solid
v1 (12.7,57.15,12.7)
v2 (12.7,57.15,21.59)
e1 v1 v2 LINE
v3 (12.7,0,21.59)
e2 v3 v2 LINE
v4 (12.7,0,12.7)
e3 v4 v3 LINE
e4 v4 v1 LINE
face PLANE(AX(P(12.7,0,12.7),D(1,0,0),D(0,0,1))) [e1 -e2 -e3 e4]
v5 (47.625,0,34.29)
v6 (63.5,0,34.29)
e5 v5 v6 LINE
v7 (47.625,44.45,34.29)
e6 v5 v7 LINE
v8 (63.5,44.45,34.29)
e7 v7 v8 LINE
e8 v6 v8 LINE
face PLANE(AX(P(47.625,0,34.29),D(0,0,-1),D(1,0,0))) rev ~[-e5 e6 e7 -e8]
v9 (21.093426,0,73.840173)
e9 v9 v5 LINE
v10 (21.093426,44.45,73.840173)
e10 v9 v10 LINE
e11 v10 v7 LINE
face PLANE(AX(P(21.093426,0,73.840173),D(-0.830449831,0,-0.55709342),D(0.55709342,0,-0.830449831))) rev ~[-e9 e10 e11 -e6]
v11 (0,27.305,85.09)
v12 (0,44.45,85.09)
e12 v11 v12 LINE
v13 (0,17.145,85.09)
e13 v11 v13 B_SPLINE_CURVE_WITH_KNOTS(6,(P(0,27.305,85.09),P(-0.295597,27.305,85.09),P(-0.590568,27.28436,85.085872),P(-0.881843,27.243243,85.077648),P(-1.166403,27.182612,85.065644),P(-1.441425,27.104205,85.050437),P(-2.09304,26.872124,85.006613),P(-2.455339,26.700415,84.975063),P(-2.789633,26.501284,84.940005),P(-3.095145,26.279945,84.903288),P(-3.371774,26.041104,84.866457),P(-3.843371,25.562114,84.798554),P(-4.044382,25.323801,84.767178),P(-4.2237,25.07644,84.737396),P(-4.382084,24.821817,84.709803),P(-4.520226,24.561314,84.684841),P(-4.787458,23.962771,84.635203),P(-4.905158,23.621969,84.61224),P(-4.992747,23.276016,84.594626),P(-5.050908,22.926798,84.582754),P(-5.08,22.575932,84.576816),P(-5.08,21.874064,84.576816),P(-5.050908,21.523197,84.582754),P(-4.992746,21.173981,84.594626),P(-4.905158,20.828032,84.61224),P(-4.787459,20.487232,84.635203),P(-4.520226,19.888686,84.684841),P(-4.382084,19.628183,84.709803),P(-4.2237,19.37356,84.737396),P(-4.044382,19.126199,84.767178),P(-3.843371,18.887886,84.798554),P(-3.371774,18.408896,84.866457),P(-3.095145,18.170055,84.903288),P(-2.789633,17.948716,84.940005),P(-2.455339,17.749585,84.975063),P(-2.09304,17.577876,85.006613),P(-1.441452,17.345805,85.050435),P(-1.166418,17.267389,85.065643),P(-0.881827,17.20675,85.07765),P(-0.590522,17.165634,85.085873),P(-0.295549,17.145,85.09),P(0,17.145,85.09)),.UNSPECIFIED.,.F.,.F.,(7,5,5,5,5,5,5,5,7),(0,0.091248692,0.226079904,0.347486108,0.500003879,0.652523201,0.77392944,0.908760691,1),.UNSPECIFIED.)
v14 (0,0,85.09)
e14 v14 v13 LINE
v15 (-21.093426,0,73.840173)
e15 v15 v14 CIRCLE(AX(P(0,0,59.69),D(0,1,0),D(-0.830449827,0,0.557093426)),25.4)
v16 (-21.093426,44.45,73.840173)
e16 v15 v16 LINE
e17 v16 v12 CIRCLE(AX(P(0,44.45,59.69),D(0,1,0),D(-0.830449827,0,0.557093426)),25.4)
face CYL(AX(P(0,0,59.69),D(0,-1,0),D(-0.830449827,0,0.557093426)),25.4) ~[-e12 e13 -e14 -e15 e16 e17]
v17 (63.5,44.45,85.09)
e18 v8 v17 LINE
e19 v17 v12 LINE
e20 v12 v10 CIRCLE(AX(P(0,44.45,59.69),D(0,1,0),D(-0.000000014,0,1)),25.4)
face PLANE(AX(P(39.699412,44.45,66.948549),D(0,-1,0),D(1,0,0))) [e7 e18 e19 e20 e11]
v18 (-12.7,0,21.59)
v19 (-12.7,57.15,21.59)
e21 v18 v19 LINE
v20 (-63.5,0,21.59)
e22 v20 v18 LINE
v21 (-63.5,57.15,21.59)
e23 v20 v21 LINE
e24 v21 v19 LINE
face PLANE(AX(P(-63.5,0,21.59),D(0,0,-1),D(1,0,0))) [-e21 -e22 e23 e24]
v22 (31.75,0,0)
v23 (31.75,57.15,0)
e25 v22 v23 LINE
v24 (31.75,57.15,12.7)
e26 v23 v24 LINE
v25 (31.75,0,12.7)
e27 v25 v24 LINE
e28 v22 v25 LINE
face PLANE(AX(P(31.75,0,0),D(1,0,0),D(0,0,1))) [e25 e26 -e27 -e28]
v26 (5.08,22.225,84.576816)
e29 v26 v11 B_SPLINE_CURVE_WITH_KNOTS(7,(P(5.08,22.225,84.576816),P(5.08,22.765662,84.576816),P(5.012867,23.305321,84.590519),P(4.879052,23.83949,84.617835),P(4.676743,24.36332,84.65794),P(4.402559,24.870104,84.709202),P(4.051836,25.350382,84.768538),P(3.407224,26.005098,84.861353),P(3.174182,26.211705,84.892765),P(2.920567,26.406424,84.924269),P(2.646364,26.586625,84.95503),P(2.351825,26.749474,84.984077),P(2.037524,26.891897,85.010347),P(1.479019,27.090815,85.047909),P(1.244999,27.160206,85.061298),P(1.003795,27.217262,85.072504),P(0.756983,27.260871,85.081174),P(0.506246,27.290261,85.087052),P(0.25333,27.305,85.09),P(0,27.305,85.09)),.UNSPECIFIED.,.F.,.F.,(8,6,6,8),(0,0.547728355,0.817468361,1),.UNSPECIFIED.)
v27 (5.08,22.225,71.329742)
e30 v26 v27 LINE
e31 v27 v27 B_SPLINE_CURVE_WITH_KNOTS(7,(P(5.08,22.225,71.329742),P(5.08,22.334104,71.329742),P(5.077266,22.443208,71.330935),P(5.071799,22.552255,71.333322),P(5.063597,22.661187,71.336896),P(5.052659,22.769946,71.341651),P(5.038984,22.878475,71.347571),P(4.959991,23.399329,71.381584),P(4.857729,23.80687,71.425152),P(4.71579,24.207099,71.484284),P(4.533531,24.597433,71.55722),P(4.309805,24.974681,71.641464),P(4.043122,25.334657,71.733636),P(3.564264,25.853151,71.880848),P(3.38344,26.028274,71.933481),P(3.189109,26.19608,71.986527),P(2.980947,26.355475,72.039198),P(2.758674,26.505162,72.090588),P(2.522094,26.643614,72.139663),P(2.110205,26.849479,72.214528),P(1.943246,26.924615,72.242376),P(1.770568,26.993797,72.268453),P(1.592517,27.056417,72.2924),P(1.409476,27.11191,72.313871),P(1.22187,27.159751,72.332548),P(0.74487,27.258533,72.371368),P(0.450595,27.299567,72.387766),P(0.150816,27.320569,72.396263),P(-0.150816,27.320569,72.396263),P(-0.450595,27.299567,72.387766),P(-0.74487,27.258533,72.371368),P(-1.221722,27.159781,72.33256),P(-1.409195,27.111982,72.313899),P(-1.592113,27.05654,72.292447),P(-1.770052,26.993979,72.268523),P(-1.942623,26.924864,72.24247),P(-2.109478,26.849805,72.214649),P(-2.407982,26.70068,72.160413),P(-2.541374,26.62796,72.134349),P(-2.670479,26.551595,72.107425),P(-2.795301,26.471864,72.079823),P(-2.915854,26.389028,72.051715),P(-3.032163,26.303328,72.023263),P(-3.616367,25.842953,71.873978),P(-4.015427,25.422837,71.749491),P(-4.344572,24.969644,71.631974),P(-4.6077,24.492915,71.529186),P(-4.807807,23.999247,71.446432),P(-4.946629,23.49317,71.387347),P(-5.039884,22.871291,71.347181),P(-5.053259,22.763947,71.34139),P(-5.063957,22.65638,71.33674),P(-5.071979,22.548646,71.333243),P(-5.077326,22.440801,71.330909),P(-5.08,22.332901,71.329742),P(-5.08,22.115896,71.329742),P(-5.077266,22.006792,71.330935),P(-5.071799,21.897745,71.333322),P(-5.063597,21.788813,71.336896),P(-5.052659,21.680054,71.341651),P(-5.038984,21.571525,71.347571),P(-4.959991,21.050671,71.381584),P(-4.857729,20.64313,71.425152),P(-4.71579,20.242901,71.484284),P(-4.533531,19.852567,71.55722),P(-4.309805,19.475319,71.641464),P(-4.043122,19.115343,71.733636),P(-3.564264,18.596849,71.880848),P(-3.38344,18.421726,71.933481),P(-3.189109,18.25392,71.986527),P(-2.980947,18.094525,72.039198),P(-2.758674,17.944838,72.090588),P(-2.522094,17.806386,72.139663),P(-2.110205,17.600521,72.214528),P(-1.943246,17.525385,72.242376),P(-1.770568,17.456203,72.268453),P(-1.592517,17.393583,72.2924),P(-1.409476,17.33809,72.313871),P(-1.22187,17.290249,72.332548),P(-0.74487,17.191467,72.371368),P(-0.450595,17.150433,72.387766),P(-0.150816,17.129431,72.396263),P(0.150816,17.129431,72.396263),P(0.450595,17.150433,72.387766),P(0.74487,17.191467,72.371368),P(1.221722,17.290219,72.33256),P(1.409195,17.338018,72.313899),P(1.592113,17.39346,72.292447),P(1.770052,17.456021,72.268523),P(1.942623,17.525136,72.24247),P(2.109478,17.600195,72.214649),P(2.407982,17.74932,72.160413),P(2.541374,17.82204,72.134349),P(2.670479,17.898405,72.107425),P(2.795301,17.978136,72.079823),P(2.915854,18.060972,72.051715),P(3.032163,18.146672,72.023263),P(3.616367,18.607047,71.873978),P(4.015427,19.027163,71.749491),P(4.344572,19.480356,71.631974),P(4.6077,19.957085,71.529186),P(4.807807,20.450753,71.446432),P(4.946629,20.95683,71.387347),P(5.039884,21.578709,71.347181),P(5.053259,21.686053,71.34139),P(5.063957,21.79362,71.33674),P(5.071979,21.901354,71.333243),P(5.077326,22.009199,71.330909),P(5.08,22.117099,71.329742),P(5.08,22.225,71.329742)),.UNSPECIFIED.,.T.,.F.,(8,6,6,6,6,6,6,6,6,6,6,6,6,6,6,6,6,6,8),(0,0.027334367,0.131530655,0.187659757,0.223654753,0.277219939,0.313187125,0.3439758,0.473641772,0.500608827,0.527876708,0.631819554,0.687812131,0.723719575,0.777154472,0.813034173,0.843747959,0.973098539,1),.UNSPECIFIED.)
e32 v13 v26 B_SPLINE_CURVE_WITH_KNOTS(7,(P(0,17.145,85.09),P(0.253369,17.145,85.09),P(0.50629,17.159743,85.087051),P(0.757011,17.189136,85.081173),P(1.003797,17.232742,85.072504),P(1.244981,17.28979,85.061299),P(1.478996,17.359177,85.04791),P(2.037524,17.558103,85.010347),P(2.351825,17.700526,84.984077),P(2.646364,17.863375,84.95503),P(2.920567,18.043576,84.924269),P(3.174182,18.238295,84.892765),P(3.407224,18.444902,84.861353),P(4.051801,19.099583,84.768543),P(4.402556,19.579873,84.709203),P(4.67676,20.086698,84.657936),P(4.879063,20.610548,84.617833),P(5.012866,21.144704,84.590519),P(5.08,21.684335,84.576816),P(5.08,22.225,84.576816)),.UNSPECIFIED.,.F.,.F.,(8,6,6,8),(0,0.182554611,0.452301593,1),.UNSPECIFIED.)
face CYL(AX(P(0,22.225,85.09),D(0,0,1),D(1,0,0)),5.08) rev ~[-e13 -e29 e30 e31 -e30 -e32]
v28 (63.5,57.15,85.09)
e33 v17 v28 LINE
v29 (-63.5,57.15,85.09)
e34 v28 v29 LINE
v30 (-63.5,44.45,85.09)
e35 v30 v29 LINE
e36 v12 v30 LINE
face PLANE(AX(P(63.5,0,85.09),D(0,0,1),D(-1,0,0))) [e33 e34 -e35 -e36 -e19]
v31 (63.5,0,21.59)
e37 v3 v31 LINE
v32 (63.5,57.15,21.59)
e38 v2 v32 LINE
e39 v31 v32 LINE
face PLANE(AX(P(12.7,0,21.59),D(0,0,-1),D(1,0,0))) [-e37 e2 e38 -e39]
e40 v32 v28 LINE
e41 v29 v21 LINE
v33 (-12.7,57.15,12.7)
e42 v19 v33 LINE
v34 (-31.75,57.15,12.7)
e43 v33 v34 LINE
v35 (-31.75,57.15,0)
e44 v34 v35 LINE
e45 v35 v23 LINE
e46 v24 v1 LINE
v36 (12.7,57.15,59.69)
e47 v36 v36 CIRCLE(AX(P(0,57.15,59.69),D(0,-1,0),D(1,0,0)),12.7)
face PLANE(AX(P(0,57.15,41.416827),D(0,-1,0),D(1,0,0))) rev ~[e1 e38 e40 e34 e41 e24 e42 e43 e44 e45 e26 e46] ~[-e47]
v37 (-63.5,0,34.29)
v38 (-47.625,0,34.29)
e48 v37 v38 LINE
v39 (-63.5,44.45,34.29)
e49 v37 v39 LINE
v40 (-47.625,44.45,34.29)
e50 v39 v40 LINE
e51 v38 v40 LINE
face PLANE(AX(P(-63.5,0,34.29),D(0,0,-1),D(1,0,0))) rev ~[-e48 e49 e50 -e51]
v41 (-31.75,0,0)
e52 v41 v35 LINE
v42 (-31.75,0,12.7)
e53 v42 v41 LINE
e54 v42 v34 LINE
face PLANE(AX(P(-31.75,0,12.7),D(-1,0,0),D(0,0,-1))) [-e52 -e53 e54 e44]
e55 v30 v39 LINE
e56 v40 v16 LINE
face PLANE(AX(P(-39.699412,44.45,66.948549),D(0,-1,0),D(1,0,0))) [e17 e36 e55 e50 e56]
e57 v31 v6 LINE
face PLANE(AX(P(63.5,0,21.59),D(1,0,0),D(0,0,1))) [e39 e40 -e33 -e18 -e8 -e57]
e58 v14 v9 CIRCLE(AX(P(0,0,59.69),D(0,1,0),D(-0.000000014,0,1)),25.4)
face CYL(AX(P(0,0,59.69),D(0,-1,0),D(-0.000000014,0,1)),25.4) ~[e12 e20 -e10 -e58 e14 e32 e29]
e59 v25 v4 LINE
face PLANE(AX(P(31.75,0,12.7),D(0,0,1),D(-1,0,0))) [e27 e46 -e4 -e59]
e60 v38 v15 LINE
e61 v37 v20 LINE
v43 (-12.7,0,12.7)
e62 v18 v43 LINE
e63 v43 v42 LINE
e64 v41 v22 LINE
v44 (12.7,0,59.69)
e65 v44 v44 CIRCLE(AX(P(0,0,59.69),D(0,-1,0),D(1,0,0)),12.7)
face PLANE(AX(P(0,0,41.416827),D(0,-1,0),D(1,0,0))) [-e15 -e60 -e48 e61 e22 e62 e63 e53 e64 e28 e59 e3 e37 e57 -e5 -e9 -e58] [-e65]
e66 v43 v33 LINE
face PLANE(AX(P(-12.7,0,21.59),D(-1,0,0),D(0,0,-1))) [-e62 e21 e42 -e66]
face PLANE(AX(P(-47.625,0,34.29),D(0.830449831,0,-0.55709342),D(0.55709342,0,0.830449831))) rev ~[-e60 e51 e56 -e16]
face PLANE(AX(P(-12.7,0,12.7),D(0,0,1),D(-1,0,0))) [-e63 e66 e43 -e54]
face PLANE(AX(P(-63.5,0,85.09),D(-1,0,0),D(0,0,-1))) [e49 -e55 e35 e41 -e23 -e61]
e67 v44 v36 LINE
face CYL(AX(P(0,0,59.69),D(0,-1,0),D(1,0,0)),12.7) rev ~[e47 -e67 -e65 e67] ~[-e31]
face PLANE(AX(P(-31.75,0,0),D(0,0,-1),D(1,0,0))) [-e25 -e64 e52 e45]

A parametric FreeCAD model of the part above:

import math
import FreeCAD as App
import Part
import Sketcher
Q = App.Units.Quantity

doc = App.newDocument("Part")
params = doc.addObject("Spreadsheet::Sheet", "Params")
for row, (alias, value) in enumerate([
    ("sketch1_width", "2 in"),
    ("sketch1_width2", "5 in"),
    ("sketch1_width3", "2.5 in"),
    ("sketch1_height", "0.5 in"),
    ("sketch1_height2", "0.35 in"),
    ("pad1_length", "2.25 in"),
    ("sketch2_radius", "1 in"),
    ("sketch2_height", "2 in"),
    ("sketch2_width", "2.5 in"),
    ("sketch2_width2", "0.625 in"),
    ("pocket1_length", "1.75 in"),
    ("sketch3_diameter", "1 in"),
    ("sketch4_diameter", "0.4 in"),
    ("pocket3_length", "1 in"),
], start=1):
    params.set(f"A{row}", alias)
    params.set(f"B{row}", "=" + value)
    params.setAlias(f"B{row}", alias)

body = doc.addObject("PartDesign::Body", "Body")

# Sketch on XZ plane
sketch1 = doc.addObject("Sketcher::SketchObject", "Sketch")
body.addObject(sketch1)
sketch1.AttachmentSupport = (doc.XZ_Plane, [""])
sketch1.MapMode = "FlatFace"
sketch1.addGeometry([
    Part.LineSegment(App.Vector(-32, 0, 0), App.Vector(32, 0, 0)),  # 0
    Part.LineSegment(App.Vector(32, 0, 0), App.Vector(32, 13, 0)),  # 1
    Part.LineSegment(App.Vector(32, 13, 0), App.Vector(13, 13, 0)),  # 2
    Part.LineSegment(App.Vector(13, 13, 0), App.Vector(13, 22, 0)),  # 3
    Part.LineSegment(App.Vector(13, 22, 0), App.Vector(64, 22, 0)),  # 4
    Part.LineSegment(App.Vector(64, 22, 0), App.Vector(64, 85, 0)),  # 5
    Part.LineSegment(App.Vector(64, 85, 0), App.Vector(-64, 85, 0)),  # 6
    Part.LineSegment(App.Vector(-64, 85, 0), App.Vector(-64, 22, 0)),  # 7
    Part.LineSegment(App.Vector(-64, 22, 0), App.Vector(-13, 22, 0)),  # 8
    Part.LineSegment(App.Vector(-13, 22, 0), App.Vector(-13, 13, 0)),  # 9
    Part.LineSegment(App.Vector(-13, 13, 0), App.Vector(-32, 13, 0)),  # 10
    Part.LineSegment(App.Vector(-32, 13, 0), App.Vector(-32, 0, 0)),  # 11
], False)
sketch1.addConstraint([
    Sketcher.Constraint("Coincident", 0, 2, 1, 1),
    Sketcher.Constraint("Coincident", 1, 2, 2, 1),
    Sketcher.Constraint("Coincident", 2, 2, 3, 1),
    Sketcher.Constraint("Coincident", 3, 2, 4, 1),
    Sketcher.Constraint("Coincident", 4, 2, 5, 1),
    Sketcher.Constraint("Coincident", 5, 2, 6, 1),
    Sketcher.Constraint("Coincident", 6, 2, 7, 1),
    Sketcher.Constraint("Coincident", 7, 2, 8, 1),
    Sketcher.Constraint("Coincident", 8, 2, 9, 1),
    Sketcher.Constraint("Coincident", 9, 2, 10, 1),
    Sketcher.Constraint("Coincident", 10, 2, 11, 1),
    Sketcher.Constraint("Coincident", 11, 2, 0, 1),
    Sketcher.Constraint("Horizontal", 0),
    Sketcher.Constraint("Vertical", 1),
    Sketcher.Constraint("Horizontal", 2),
    Sketcher.Constraint("Vertical", 3),
    Sketcher.Constraint("Horizontal", 4),
    Sketcher.Constraint("Vertical", 5),
    Sketcher.Constraint("Horizontal", 6),
    Sketcher.Constraint("Vertical", 7),
    Sketcher.Constraint("Horizontal", 8),
    Sketcher.Constraint("Vertical", 9),
    Sketcher.Constraint("Horizontal", 10),
    Sketcher.Constraint("Vertical", 11),
    Sketcher.Constraint("Symmetric", 0, 2, 11, 2, -1, 1),
    Sketcher.Constraint("Symmetric", 4, 2, 7, 2, -2),
    Sketcher.Constraint("Symmetric", 2, 2, 9, 2, -2),
    Sketcher.Constraint("Equal", 0, 5),
    Sketcher.Constraint("DistanceX", 4, 1, 4, 2, Q("2 in")),
    Sketcher.Constraint("DistanceX", 6, 2, 6, 1, Q("5 in")),
    Sketcher.Constraint("DistanceX", 0, 1, 0, 2, Q("2.5 in")),
    Sketcher.Constraint("DistanceY", 1, 1, 1, 2, Q("0.5 in")),
    Sketcher.Constraint("DistanceY", 3, 1, 3, 2, Q("0.35 in")),
])
sketch1.setExpression("Constraints[28]", "Params.sketch1_width")
sketch1.setExpression("Constraints[29]", "Params.sketch1_width2")
sketch1.setExpression("Constraints[30]", "Params.sketch1_width3")
sketch1.setExpression("Constraints[31]", "Params.sketch1_height")
sketch1.setExpression("Constraints[32]", "Params.sketch1_height2")
pad1 = doc.addObject("PartDesign::Pad", "Pad")
body.addObject(pad1)
pad1.Profile = sketch1
pad1.setExpression("Length", "Params.pad1_length")
pad1.Reversed = True

# Sketch on XZ plane
sketch2 = doc.addObject("Sketcher::SketchObject", "Sketch001")
body.addObject(sketch2)
sketch2.AttachmentSupport = (doc.XZ_Plane, [""])
sketch2.MapMode = "FlatFace"
sketch2.addGeometry([
    Part.LineSegment(App.Vector(-64, 85, 0), App.Vector(-64, 34, 0)),  # 0
    Part.LineSegment(App.Vector(-64, 34, 0), App.Vector(-48, 34, 0)),  # 1
    Part.LineSegment(App.Vector(-48, 34, 0), App.Vector(-21, 74, 0)),  # 2
    Part.ArcOfCircle(Part.Circle(App.Vector(0, 60, 0), App.Vector(0, 0, 1), 25), math.radians(90), math.radians(146)),  # 3
    Part.LineSegment(App.Vector(0, 85, 0), App.Vector(-64, 85, 0)),  # 4
    Part.LineSegment(App.Vector(64, 85, 0), App.Vector(0, 85, 0)),  # 5
    Part.ArcOfCircle(Part.Circle(App.Vector(0, 60, 0), App.Vector(0, 0, 1), 25), math.radians(34), math.radians(90)),  # 6
    Part.LineSegment(App.Vector(21, 74, 0), App.Vector(48, 34, 0)),  # 7
    Part.LineSegment(App.Vector(48, 34, 0), App.Vector(64, 34, 0)),  # 8
    Part.LineSegment(App.Vector(64, 34, 0), App.Vector(64, 85, 0)),  # 9
], False)
sketch2.addConstraint([
    Sketcher.Constraint("Coincident", 0, 2, 1, 1),
    Sketcher.Constraint("Coincident", 1, 2, 2, 1),
    Sketcher.Constraint("Tangent", 2, 2, 3, 2),
    Sketcher.Constraint("Tangent", 3, 1, 4, 1),
    Sketcher.Constraint("Coincident", 4, 2, 0, 1),
    Sketcher.Constraint("Tangent", 5, 2, 6, 2),
    Sketcher.Constraint("Tangent", 6, 1, 7, 1),
    Sketcher.Constraint("Coincident", 7, 2, 8, 1),
    Sketcher.Constraint("Coincident", 8, 2, 9, 1),
    Sketcher.Constraint("Coincident", 9, 2, 5, 1),
    Sketcher.Constraint("Vertical", 0),
    Sketcher.Constraint("Horizontal", 1),
    Sketcher.Constraint("Horizontal", 4),
    Sketcher.Constraint("Horizontal", 5),
    Sketcher.Constraint("Horizontal", 8),
    Sketcher.Constraint("Vertical", 9),
    Sketcher.Constraint("Coincident", 6, 3, 3, 3),
    Sketcher.Constraint("Equal", 3, 6),
    Sketcher.Constraint("Symmetric", 2, 2, 6, 1, -2),
    Sketcher.Constraint("Symmetric", 0, 2, 8, 2, -2),
    Sketcher.Constraint("Radius", 3, Q("1 in")),
    Sketcher.Constraint("DistanceY", 0, 2, 0, 1, Q("2 in")),
    Sketcher.Constraint("DistanceX", 4, 2, 4, 1, Q("2.5 in")),
    Sketcher.Constraint("DistanceX", 1, 1, 1, 2, Q("0.625 in")),
    Sketcher.Constraint("DistanceY", -1, 1, 3, 3, Q("2.35 in")),
])
sketch2.setExpression("Constraints[20]", "Params.sketch2_radius")
sketch2.setExpression("Constraints[21]", "Params.sketch2_height")
sketch2.setExpression("Constraints[22]", "Params.sketch2_width")
sketch2.setExpression("Constraints[23]", "Params.sketch2_width2")
pocket1 = doc.addObject("PartDesign::Pocket", "Pocket")
body.addObject(pocket1)
pocket1.Profile = sketch2
pocket1.setExpression("Length", "Params.pocket1_length")

# Sketch on XZ plane
sketch3 = doc.addObject("Sketcher::SketchObject", "Sketch002")
body.addObject(sketch3)
sketch3.AttachmentSupport = (doc.XZ_Plane, [""])
sketch3.MapMode = "FlatFace"
sketch3.addGeometry(Part.Circle(App.Vector(0, 60, 0), App.Vector(0, 0, 1), 13), False)
sketch3.addConstraint([
    Sketcher.Constraint("PointOnObject", 0, 3, -2),
    Sketcher.Constraint("Diameter", 0, Q("1 in")),
    Sketcher.Constraint("DistanceY", -1, 1, 0, 3, Q("2.35 in")),
])
sketch3.setExpression("Constraints[1]", "Params.sketch3_diameter")
pocket2 = doc.addObject("PartDesign::Pocket", "Pocket001")
body.addObject(pocket2)
pocket2.Profile = sketch3
pocket2.Type = "ThroughAll"

# Sketch on XY plane
sketch4 = doc.addObject("Sketcher::SketchObject", "Sketch003")
body.addObject(sketch4)
sketch4.AttachmentSupport = (doc.XY_Plane, [""])
sketch4.MapMode = "FlatFace"
sketch4.AttachmentOffset = App.Placement(App.Vector(0, 0, 3.35 * 25.4), App.Rotation())
sketch4.addGeometry(Part.Circle(App.Vector(0, 22, 0), App.Vector(0, 0, 1), 5), False)
sketch4.addConstraint([
    Sketcher.Constraint("PointOnObject", 0, 3, -2),
    Sketcher.Constraint("Diameter", 0, Q("0.4 in")),
    Sketcher.Constraint("DistanceY", -1, 1, 0, 3, Q("0.875 in")),
])
sketch4.setExpression("Constraints[1]", "Params.sketch4_diameter")
pocket3 = doc.addObject("PartDesign::Pocket", "Pocket002")
body.addObject(pocket3)
pocket3.Profile = sketch4
pocket3.setExpression("Length", "Params.pocket3_length")

doc.recompute()
